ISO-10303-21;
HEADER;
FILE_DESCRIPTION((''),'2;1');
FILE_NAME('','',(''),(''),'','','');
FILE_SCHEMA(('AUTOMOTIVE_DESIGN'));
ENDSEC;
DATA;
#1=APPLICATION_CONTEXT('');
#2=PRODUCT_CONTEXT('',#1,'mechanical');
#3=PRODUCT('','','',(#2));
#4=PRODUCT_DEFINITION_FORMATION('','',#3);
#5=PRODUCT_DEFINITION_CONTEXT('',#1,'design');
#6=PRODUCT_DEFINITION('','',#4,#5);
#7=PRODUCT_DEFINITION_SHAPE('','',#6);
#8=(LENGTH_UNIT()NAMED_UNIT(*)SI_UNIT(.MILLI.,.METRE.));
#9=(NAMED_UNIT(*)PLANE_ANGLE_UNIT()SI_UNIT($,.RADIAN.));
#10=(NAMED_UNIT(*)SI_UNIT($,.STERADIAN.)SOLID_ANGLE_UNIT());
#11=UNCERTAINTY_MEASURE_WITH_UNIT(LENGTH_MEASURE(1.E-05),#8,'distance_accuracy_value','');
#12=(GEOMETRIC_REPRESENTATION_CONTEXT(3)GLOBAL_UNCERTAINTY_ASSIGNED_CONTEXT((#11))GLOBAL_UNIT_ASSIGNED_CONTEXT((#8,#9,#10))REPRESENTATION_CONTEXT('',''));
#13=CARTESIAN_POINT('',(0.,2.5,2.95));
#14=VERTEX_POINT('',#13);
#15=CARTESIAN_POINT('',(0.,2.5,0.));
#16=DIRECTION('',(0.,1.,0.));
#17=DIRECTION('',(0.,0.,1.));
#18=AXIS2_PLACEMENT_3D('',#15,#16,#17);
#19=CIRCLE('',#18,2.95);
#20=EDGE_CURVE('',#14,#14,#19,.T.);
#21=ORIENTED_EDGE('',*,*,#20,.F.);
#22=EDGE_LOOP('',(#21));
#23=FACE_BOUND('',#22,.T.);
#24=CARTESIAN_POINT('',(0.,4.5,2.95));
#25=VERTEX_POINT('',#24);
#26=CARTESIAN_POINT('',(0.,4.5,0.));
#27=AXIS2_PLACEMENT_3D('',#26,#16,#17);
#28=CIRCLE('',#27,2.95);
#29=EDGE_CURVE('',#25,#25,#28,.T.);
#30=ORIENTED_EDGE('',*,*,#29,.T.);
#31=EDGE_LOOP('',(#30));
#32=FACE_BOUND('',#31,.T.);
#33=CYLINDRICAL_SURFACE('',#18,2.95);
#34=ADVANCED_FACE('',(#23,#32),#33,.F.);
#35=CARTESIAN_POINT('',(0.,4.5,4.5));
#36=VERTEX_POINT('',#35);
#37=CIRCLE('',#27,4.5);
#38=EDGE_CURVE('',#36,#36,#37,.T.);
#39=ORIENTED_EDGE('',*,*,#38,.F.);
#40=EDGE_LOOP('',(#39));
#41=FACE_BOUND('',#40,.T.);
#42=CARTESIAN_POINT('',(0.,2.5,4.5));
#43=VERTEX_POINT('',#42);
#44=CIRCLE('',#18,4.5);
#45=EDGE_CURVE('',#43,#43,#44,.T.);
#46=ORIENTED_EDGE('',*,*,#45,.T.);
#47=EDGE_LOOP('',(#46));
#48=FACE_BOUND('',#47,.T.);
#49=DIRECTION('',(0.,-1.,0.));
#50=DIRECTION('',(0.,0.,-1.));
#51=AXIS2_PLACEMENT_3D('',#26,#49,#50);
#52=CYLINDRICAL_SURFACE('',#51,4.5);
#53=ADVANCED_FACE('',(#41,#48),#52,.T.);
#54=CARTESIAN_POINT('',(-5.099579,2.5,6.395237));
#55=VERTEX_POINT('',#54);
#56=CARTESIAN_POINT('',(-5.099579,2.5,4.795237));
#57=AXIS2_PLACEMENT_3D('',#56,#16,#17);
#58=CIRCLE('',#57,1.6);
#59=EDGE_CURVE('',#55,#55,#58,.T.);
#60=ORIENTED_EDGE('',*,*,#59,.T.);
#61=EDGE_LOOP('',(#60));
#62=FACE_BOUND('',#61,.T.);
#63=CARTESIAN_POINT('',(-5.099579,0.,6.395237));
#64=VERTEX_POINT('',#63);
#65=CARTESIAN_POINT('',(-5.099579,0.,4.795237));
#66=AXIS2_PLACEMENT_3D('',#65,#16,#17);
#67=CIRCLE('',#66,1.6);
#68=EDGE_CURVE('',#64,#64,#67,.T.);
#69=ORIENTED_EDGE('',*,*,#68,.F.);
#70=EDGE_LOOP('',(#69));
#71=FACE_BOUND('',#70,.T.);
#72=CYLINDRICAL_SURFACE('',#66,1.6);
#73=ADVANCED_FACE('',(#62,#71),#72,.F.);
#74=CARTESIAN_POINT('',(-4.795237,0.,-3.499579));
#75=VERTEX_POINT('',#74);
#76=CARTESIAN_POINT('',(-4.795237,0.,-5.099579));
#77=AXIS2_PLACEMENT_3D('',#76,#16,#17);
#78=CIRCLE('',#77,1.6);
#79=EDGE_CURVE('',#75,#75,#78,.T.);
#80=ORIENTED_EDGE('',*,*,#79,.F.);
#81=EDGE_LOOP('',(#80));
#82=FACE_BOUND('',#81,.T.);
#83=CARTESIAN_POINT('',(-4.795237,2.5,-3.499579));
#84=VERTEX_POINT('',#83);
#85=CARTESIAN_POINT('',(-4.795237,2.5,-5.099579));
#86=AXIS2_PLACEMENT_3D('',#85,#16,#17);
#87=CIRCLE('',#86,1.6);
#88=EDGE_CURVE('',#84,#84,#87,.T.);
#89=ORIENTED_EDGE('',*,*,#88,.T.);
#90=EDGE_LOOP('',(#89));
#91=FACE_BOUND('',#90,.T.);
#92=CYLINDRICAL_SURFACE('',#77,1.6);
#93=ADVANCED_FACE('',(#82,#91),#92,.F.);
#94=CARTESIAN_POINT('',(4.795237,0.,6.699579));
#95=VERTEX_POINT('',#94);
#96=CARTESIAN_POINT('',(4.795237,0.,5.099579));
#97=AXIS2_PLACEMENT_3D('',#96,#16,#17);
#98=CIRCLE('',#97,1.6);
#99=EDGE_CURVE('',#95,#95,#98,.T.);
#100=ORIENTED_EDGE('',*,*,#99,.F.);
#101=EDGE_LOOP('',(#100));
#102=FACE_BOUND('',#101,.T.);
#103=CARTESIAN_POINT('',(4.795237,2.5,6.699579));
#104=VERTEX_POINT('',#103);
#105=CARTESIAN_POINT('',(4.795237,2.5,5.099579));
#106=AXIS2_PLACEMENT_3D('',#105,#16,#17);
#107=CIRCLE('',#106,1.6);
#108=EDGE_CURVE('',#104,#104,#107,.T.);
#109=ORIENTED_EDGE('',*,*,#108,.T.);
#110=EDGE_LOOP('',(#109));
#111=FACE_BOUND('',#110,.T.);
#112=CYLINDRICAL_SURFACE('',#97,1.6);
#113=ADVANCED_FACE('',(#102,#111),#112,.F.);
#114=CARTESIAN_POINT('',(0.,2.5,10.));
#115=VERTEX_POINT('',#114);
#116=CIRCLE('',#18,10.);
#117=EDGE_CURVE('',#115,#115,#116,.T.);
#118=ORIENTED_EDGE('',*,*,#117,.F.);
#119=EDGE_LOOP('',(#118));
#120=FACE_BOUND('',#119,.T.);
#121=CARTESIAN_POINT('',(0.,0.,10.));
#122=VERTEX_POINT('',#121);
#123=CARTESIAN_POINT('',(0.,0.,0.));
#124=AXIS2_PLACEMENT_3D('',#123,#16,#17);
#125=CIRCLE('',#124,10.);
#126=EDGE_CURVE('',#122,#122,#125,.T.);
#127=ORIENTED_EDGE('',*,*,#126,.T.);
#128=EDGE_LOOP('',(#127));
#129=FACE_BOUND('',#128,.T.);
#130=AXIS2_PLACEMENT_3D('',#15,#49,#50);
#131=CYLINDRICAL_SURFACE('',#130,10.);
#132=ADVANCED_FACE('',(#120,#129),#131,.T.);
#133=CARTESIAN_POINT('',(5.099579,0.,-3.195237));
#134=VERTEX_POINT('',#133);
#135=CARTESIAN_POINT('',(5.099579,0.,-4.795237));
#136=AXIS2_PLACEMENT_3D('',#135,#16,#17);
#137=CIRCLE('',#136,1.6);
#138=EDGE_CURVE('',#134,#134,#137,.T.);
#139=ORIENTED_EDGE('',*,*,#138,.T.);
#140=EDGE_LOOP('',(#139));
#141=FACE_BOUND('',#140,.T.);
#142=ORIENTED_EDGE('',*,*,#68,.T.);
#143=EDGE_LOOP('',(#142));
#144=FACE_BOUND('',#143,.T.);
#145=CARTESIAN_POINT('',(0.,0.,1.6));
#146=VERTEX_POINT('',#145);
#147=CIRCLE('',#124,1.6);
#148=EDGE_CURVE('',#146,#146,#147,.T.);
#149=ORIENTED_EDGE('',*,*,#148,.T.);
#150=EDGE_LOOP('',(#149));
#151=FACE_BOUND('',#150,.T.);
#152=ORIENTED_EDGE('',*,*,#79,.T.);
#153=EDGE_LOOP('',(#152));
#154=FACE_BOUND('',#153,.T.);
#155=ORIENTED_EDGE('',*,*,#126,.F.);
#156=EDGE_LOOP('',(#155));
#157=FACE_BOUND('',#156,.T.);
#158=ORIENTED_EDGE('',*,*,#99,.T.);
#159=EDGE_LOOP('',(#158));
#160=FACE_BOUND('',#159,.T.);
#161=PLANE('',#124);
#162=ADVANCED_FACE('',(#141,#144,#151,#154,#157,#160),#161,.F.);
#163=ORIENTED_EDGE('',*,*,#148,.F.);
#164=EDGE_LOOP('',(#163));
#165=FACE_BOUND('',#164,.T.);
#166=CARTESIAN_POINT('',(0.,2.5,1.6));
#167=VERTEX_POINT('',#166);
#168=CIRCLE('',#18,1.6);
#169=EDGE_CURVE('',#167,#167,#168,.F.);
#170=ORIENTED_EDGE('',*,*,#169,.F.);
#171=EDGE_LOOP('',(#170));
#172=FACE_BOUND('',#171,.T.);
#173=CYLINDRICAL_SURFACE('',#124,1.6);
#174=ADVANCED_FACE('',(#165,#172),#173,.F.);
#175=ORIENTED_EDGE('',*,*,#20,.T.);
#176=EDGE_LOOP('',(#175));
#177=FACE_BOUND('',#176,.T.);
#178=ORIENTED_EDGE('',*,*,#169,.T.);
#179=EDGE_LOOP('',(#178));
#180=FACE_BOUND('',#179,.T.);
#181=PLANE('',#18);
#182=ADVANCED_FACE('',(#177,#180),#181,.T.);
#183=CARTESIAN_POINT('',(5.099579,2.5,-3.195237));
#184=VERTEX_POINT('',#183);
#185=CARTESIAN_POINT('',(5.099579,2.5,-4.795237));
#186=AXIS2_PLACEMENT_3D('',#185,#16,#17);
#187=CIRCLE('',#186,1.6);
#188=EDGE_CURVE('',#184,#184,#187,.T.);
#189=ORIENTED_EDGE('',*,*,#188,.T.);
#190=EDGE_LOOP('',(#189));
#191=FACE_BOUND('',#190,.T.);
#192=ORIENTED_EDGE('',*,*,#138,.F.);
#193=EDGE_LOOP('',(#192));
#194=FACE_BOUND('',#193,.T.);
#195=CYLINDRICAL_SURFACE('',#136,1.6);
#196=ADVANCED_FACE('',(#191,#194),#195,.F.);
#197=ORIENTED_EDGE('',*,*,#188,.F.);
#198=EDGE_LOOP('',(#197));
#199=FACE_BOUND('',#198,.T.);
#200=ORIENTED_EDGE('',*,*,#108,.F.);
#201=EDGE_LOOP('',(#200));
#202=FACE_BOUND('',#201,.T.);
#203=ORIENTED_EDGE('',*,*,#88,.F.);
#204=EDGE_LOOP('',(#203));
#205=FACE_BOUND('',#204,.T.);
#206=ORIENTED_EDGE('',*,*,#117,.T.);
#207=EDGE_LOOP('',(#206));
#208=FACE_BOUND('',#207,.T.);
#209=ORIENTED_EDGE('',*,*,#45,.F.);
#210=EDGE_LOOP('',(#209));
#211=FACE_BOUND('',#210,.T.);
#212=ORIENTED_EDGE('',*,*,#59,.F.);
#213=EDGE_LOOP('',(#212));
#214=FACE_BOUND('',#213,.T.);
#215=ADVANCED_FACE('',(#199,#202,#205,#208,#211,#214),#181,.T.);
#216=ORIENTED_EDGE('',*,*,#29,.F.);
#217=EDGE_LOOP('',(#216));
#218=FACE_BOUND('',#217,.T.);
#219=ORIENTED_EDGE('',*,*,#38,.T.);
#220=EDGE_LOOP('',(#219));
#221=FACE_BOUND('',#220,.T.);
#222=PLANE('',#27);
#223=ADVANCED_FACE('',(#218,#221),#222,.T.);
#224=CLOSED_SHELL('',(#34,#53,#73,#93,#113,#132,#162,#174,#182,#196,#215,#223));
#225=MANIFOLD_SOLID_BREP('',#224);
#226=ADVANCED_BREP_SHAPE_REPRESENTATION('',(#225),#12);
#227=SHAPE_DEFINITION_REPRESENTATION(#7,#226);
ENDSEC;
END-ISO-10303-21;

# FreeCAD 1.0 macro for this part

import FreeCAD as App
import Part
import Sketcher

V = App.Vector

doc = App.newDocument("Part")
params = doc.addObject("Spreadsheet::Sheet", "Params")
for row, (alias, value) in enumerate([
    ("sketch1_diameter", "20 mm"),
    ("pad1_length", "2.5 mm"),
    ("sketch2_diameter", "3.2 mm"),
    ("sketch3_diameter", "9 mm"),
    ("pad2_length", "2 mm"),
    ("sketch4_diameter", "5.9 mm"),
    ("pocket2_length", "2 mm"),
], start=1):
    params.set(f"A{row}", alias)
    params.set(f"B{row}", "=" + value)
    params.setAlias(f"B{row}", alias)

body = doc.addObject("PartDesign::Body", "Body")

# Sketch on XZ plane
sketch1 = body.newObject("Sketcher::SketchObject", "Sketch")
sketch1.AttachmentSupport = (doc.getObject("XZ_Plane"), [""])
sketch1.MapMode = "FlatFace"
sketch1.addGeometry(Part.Circle(V(0, 0, 0), V(0, 0, 1), 10), False)
sketch1.addConstraint([
    Sketcher.Constraint("Coincident", 0, 3, -1, 1),
    Sketcher.Constraint("Diameter", 0, 20.0),
])
sketch1.setExpression("Constraints[1]", "Params.sketch1_diameter")
pad1 = body.newObject("PartDesign::Pad", "Pad")
pad1.Profile = sketch1
pad1.setExpression("Length", "Params.pad1_length")
pad1.Reversed = True

# Sketch on XZ plane
sketch2 = body.newObject("Sketcher::SketchObject", "Sketch001")
sketch2.AttachmentSupport = (doc.getObject("XZ_Plane"), [""])
sketch2.MapMode = "FlatFace"
sketch2.AttachmentOffset = App.Placement(V(0, 0, -2.5), App.Rotation())
sketch2.addGeometry([
    Part.Circle(V(-4.8, -5.1, 0), V(0, 0, 1), 1.6),  # 0
    Part.Circle(V(-5.1, 4.8, 0), V(0, 0, 1), 1.6),  # 1
    Part.Circle(V(4.8, 5.1, 0), V(0, 0, 1), 1.6),  # 2
    Part.Circle(V(5.1, -4.8, 0), V(0, 0, 1), 1.6),  # 3
    Part.Circle(V(0, 0, 0), V(0, 0, 1), 1.6),  # 4
], False)
sketch2.addConstraint([
    Sketcher.Constraint("Coincident", 4, 3, -1, 1),
    Sketcher.Constraint("Equal", 0, 1),
    Sketcher.Constraint("Equal", 1, 2),
    Sketcher.Constraint("Equal", 2, 3),
    Sketcher.Constraint("Equal", 3, 4),
    Sketcher.Constraint("Symmetric", 0, 3, 2, 3, -1, 1),
    Sketcher.Constraint("Symmetric", 1, 3, 3, 3, -1, 1),
    Sketcher.Constraint("Diameter", 0, 3.2),
    Sketcher.Constraint("DistanceY", 0, 3, -1, 1, 5.099579),
    Sketcher.Constraint("DistanceX", 1, 3, -1, 1, 5.099579),
    Sketcher.Constraint("DistanceX", 1, 3, 0, 3, 0.304342),
    Sketcher.Constraint("DistanceY", 1, 3, 2, 3, 0.304342),
])
sketch2.setExpression("Constraints[7]", "Params.sketch2_diameter")
pocket1 = body.newObject("PartDesign::Pocket", "Pocket")
pocket1.Profile = sketch2
pocket1.Type = "ThroughAll"
pocket1.Reversed = True

# Sketch on XZ plane
sketch3 = body.newObject("Sketcher::SketchObject", "Sketch002")
sketch3.AttachmentSupport = (doc.getObject("XZ_Plane"), [""])
sketch3.MapMode = "FlatFace"
sketch3.AttachmentOffset = App.Placement(V(0, 0, -2.5), App.Rotation())
sketch3.addGeometry(Part.Circle(V(0, 0, 0), V(0, 0, 1), 4.5), False)
sketch3.addConstraint([
    Sketcher.Constraint("Coincident", 0, 3, -1, 1),
    Sketcher.Constraint("Diameter", 0, 9.0),
])
sketch3.setExpression("Constraints[1]", "Params.sketch3_diameter")
pad2 = body.newObject("PartDesign::Pad", "Pad001")
pad2.Profile = sketch3
pad2.setExpression("Length", "Params.pad2_length")
pad2.Reversed = True

# Sketch on XZ plane
sketch4 = body.newObject("Sketcher::SketchObject", "Sketch003")
sketch4.AttachmentSupport = (doc.getObject("XZ_Plane"), [""])
sketch4.MapMode = "FlatFace"
sketch4.AttachmentOffset = App.Placement(V(0, 0, -4.5), App.Rotation())
sketch4.addGeometry(Part.Circle(V(0, 0, 0), V(0, 0, 1), 3), False)
sketch4.addConstraint([
    Sketcher.Constraint("Coincident", 0, 3, -1, 1),
    Sketcher.Constraint("Diameter", 0, 5.9),
])
sketch4.setExpression("Constraints[1]", "Params.sketch4_diameter")
pocket2 = body.newObject("PartDesign::Pocket", "Pocket001")
pocket2.Profile = sketch4
pocket2.setExpression("Length", "Params.pocket2_length")
pocket2.Reversed = True

doc.recompute()
